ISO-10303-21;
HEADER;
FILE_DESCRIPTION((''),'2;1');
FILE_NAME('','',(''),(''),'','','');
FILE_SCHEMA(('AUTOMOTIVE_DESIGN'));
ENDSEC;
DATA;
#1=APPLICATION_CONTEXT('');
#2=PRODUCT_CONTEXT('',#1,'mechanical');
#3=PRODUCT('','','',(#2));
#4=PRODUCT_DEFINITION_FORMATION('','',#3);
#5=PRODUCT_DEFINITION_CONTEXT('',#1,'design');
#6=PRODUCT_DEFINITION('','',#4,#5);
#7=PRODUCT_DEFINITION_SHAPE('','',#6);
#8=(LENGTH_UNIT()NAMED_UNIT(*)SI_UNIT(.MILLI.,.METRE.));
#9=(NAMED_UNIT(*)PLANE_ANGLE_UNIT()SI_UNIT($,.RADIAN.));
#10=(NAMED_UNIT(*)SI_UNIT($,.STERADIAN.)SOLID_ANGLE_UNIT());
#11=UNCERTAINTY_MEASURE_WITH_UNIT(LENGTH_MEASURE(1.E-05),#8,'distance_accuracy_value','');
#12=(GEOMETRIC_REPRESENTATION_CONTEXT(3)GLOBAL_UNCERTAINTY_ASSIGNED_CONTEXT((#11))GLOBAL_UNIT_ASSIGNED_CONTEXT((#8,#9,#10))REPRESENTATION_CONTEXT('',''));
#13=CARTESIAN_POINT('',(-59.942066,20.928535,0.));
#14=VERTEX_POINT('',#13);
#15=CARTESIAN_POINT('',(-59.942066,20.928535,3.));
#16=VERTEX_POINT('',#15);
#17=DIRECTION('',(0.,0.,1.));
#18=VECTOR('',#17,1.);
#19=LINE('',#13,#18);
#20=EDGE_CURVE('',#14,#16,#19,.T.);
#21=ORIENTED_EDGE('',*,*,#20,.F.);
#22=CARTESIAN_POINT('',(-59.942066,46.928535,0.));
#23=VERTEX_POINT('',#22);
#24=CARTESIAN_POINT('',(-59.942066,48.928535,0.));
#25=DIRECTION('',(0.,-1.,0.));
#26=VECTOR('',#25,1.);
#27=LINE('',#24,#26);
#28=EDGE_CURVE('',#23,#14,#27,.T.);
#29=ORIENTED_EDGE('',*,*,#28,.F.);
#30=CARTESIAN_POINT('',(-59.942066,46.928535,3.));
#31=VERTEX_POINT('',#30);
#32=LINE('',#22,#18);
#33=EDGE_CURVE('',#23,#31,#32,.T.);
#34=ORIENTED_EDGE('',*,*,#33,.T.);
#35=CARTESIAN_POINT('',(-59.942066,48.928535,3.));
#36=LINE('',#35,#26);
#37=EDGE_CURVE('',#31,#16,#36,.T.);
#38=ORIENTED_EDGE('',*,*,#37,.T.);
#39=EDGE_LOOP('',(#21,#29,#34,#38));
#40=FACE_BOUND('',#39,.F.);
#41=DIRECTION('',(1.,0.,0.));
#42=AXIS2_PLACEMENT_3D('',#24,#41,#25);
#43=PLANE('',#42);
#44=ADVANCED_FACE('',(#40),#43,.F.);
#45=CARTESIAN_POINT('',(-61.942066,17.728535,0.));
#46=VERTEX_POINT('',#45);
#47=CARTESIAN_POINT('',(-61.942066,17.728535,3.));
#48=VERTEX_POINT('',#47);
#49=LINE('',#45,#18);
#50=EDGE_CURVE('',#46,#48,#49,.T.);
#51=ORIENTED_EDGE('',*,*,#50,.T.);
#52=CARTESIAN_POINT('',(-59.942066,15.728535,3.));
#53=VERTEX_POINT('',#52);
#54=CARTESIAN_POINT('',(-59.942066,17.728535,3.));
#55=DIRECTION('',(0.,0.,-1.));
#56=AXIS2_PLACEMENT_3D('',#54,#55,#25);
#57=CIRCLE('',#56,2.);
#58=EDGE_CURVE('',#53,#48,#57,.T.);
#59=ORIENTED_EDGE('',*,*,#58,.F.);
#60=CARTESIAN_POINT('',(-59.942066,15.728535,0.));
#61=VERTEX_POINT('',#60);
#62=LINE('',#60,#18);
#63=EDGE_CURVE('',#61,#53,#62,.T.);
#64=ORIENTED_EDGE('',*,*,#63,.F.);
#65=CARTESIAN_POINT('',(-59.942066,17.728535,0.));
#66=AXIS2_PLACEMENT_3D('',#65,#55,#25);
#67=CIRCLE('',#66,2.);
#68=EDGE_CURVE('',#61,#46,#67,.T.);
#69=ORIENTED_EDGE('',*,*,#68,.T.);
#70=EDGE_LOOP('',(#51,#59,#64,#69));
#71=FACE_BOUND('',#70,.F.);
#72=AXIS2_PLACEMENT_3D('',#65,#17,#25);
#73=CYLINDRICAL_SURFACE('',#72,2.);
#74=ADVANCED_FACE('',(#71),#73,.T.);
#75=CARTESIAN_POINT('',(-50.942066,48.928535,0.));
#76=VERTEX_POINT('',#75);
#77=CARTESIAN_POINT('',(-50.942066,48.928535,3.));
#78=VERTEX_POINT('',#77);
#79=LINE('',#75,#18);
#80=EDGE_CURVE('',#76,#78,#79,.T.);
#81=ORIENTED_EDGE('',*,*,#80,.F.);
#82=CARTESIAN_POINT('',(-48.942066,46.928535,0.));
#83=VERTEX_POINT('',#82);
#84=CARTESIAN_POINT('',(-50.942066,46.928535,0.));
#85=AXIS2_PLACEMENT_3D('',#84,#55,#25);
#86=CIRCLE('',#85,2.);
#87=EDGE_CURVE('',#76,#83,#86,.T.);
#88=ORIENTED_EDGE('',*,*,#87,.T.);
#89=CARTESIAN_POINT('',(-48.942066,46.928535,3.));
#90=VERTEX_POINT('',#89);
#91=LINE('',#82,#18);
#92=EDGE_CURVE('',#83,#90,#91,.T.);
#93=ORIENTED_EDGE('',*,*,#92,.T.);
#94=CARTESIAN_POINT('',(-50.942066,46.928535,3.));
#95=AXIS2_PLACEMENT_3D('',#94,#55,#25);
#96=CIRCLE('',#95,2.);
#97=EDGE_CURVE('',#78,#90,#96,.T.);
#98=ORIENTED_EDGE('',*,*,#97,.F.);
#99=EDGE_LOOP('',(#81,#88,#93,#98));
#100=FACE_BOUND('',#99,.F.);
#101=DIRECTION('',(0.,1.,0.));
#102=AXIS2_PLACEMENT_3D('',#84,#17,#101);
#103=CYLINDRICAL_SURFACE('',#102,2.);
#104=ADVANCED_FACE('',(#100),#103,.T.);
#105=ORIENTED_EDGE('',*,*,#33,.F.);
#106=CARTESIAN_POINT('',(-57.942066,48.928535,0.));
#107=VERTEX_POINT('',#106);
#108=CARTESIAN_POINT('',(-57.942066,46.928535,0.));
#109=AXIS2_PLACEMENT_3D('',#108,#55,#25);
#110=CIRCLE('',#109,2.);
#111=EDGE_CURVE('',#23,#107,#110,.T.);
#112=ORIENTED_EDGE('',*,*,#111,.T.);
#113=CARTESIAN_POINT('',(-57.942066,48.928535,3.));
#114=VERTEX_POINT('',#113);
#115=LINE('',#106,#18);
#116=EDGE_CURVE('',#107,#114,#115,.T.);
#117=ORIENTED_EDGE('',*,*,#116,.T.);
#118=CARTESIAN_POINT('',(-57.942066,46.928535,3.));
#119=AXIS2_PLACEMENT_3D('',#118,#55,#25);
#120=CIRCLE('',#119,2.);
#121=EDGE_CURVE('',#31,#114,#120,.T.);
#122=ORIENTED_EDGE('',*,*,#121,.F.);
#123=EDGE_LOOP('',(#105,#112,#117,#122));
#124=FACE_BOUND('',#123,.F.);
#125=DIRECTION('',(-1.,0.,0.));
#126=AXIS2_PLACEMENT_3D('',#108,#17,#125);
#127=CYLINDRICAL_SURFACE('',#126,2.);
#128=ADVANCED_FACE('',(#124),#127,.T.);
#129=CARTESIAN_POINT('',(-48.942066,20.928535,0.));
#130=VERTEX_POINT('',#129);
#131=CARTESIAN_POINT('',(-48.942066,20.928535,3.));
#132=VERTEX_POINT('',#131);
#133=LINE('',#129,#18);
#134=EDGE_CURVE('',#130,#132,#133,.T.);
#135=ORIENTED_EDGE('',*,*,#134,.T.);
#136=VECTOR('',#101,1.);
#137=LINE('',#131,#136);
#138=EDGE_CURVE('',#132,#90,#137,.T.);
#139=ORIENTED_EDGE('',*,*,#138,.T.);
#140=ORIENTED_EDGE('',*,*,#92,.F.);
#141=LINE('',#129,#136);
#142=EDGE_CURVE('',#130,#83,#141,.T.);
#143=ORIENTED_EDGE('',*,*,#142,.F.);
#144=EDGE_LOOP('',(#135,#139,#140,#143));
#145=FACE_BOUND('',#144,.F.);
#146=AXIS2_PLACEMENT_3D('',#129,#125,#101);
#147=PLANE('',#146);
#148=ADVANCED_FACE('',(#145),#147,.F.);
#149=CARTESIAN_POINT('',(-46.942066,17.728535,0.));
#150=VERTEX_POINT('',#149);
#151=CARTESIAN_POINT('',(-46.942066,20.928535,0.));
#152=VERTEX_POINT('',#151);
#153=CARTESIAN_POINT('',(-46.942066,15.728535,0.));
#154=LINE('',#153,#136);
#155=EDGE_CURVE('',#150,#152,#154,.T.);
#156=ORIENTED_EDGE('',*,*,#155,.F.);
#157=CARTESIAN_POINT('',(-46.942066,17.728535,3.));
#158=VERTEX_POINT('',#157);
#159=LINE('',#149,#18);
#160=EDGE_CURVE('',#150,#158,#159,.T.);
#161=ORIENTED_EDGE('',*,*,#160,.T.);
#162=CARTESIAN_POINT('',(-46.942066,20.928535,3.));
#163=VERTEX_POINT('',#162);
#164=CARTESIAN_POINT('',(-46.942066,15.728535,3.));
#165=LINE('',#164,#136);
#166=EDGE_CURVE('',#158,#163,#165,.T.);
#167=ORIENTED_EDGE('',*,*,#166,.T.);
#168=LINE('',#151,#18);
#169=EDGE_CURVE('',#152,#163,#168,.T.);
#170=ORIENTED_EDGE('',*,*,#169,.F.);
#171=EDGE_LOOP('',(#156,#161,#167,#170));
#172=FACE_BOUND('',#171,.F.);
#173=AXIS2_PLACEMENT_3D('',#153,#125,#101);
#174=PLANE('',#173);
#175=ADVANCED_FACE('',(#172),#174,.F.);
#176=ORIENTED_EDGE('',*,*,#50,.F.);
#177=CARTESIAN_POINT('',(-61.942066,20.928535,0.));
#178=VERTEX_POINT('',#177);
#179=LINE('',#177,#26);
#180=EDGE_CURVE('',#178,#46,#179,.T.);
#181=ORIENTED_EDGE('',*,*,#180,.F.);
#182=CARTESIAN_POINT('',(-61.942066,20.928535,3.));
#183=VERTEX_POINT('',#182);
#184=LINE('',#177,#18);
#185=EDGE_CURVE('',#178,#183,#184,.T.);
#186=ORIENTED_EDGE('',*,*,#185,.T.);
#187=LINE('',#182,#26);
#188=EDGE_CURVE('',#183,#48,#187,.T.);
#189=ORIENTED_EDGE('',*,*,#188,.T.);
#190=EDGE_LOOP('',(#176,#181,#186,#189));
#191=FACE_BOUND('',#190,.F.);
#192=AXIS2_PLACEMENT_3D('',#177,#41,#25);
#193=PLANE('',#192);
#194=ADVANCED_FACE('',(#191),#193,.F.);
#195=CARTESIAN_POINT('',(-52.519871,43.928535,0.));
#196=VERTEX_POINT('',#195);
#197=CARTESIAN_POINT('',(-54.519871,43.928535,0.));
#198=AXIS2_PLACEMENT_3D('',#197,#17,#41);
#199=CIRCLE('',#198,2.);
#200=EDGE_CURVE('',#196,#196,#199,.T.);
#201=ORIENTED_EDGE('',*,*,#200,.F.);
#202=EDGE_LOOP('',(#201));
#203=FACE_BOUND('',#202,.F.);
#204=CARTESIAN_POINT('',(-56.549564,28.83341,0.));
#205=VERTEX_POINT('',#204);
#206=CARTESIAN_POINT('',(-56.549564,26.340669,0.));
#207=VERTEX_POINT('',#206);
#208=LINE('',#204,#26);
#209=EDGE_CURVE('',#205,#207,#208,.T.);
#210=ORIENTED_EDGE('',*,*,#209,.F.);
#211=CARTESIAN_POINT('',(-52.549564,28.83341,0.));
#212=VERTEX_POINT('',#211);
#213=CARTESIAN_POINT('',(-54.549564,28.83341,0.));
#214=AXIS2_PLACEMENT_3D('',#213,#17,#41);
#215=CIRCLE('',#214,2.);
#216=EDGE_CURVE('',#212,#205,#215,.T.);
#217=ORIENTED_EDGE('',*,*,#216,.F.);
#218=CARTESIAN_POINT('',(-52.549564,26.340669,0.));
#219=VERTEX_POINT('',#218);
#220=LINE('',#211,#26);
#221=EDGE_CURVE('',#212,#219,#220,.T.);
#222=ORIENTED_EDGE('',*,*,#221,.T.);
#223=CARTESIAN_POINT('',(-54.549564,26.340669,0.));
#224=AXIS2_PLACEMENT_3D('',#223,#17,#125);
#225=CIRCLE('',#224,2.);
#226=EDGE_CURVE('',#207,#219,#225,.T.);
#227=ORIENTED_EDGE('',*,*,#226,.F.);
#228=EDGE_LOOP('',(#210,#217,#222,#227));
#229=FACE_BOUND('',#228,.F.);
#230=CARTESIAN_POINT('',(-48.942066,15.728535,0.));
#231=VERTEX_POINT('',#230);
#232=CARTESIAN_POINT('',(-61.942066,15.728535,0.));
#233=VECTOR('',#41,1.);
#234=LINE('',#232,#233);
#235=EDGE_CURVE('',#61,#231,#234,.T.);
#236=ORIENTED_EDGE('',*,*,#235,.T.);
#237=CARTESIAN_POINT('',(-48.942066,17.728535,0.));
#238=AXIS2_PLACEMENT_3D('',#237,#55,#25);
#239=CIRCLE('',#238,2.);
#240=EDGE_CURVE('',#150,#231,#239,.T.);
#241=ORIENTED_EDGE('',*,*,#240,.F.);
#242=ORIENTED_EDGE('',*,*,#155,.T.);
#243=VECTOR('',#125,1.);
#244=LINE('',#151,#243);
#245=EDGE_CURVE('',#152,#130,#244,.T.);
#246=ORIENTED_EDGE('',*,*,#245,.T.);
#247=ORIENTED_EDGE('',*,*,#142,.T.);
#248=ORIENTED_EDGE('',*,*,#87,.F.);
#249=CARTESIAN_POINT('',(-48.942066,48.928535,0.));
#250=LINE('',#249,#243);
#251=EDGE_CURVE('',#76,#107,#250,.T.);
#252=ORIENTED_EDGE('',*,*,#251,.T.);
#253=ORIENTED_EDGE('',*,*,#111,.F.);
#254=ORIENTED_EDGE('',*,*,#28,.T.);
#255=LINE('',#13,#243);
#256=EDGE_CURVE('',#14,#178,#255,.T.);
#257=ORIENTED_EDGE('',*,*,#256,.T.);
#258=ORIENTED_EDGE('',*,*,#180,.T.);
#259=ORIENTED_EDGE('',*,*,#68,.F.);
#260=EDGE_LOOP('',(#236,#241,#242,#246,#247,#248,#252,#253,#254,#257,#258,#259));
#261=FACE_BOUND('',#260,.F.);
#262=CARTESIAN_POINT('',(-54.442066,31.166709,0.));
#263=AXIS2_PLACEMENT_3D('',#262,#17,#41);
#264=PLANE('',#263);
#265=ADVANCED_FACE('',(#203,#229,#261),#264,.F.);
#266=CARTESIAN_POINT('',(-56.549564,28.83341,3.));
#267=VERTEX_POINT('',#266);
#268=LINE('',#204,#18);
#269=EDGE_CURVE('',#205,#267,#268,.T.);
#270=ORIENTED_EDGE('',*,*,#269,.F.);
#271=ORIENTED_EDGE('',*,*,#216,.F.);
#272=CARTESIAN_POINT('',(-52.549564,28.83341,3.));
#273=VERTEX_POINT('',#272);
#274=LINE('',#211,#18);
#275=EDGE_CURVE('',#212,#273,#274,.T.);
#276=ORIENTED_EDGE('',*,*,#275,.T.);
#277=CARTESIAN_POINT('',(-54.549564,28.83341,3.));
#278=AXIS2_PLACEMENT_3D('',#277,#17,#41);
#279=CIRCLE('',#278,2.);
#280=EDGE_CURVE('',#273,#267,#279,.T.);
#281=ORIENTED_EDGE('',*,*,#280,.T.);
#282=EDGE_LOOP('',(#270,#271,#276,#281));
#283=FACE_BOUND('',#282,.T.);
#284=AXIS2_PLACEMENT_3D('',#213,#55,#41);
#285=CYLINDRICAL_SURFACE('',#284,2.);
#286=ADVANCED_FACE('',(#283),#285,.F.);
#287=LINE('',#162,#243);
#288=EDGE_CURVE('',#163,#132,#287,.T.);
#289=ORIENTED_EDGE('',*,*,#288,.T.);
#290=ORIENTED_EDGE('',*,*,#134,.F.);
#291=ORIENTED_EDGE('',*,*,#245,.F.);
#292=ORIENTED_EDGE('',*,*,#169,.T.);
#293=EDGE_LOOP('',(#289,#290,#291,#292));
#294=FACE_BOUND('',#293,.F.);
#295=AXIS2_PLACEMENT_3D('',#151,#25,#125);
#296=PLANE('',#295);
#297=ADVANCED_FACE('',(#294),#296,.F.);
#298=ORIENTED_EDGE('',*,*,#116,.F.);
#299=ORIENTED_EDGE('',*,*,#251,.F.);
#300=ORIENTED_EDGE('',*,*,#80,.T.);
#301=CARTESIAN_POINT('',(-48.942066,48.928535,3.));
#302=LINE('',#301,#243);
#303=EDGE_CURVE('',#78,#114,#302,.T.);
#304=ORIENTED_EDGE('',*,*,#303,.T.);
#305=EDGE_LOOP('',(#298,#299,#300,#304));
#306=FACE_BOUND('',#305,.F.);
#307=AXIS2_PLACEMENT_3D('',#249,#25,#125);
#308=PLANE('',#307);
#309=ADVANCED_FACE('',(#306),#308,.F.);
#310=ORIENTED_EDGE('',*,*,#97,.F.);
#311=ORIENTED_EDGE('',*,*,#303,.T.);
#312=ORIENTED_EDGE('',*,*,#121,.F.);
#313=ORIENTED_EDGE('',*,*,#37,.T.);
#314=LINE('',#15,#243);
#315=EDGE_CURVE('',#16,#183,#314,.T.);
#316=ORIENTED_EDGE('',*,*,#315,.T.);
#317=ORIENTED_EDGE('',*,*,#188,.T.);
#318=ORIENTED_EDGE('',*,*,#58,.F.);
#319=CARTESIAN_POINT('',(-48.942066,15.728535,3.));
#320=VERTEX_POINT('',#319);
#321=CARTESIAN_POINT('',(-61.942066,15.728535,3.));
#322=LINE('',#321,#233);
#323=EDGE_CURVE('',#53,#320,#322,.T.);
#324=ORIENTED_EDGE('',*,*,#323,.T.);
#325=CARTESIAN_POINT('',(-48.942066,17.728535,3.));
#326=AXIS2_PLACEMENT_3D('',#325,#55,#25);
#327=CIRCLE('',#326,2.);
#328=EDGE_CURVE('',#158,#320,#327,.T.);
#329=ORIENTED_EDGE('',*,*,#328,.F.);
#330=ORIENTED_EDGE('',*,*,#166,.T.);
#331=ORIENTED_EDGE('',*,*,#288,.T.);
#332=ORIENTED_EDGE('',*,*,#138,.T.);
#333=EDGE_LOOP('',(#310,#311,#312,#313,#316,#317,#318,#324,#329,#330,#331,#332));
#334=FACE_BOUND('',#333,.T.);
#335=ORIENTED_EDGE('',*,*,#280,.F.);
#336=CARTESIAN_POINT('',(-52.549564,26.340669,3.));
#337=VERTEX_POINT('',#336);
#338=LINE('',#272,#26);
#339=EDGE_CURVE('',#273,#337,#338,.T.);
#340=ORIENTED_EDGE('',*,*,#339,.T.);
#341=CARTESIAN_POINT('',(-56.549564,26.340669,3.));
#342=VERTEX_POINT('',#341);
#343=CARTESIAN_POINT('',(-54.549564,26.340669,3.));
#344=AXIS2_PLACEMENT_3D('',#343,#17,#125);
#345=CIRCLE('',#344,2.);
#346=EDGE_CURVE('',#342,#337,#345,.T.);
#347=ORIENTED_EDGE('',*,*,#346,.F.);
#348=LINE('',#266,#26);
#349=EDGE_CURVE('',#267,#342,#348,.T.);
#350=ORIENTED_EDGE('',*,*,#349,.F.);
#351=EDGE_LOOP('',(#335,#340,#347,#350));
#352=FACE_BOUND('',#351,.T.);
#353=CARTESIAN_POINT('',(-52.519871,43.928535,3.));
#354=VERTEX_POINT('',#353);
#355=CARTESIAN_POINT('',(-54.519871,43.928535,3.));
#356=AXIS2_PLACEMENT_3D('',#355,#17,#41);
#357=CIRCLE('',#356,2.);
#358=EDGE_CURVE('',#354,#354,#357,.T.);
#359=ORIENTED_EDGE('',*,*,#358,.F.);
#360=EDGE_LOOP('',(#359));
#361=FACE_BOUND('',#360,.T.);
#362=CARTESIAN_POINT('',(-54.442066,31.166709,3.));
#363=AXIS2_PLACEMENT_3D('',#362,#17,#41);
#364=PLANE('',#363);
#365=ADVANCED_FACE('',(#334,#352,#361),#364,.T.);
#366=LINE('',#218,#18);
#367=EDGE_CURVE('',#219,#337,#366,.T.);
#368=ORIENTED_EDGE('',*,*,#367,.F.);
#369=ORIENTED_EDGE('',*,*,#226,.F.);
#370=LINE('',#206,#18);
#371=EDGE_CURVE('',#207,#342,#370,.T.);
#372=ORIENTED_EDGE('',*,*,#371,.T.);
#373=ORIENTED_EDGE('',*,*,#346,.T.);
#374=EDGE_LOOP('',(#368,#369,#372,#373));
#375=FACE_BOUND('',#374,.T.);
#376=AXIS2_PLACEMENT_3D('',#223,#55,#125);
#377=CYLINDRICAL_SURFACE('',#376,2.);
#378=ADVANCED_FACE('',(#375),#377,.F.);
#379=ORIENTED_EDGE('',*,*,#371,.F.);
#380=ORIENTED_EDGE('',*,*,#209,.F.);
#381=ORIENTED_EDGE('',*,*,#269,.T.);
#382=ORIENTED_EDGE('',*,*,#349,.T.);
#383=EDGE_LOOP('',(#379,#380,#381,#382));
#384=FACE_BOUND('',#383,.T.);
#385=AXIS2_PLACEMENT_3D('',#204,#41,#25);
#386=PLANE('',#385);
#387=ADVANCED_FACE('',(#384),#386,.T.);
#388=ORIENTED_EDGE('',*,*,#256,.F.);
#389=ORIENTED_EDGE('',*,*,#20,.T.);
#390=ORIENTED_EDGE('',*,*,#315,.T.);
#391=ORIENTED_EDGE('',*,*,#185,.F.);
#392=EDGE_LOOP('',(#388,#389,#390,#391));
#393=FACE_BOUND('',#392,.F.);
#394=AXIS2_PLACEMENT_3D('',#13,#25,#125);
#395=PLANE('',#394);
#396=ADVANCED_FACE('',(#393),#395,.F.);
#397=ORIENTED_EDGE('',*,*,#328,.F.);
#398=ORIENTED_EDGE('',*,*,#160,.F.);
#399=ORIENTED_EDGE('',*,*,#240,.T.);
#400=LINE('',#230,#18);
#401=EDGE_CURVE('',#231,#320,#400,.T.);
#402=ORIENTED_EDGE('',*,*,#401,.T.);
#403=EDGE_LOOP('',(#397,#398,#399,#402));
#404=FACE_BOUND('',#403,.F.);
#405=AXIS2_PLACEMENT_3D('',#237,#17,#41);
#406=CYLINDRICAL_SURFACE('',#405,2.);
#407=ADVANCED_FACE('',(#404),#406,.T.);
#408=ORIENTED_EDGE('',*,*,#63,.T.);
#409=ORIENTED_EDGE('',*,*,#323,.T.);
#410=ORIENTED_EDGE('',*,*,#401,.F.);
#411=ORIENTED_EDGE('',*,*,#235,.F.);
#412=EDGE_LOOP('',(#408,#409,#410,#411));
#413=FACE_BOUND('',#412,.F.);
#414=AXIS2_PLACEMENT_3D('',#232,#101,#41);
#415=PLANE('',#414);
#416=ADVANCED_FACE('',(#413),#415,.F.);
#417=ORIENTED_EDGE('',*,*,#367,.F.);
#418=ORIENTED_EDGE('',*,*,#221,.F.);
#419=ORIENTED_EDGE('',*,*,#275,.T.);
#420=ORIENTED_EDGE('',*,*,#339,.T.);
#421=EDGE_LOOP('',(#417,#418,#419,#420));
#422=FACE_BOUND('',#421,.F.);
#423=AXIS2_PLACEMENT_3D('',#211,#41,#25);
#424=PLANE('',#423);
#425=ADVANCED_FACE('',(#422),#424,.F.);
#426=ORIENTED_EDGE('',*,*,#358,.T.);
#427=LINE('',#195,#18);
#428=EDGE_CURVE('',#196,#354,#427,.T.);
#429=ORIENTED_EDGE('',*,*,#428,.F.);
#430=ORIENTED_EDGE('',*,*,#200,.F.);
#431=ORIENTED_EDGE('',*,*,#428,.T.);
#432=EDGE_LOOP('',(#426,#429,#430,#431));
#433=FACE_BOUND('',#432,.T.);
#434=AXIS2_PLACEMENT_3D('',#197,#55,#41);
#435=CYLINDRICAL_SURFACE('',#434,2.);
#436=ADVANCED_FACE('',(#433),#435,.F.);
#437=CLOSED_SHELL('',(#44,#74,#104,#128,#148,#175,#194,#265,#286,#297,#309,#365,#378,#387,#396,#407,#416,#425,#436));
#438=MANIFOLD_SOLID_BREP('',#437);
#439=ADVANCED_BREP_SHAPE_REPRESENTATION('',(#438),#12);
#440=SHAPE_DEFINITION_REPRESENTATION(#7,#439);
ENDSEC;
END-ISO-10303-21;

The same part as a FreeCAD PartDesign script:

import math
import FreeCAD as App
import Part
import Sketcher


def edges_at(feature, points):
    """Names of the edges that pass closest to the given points."""
    edges = feature.Shape.Edges
    near = lambda p: min(range(len(edges)), key=lambda i: edges[i].distToShape(Part.Vertex(*p))[0])
    return sorted({f"Edge{near(p) + 1}" for p in points})

doc = App.newDocument("Part")
body = doc.addObject("PartDesign::Body", "Body")

# Sketch on XY plane
sketch1 = body.newObject("Sketcher::SketchObject", "Sketch")
sketch1.AttachmentSupport = (doc.getObject("XY_Plane"), [""])
sketch1.MapMode = "FlatFace"
sketch1.addGeometry(Part.LineSegment(App.Vector(-48.9, 48.9, 0), App.Vector(-59.9, 48.9, 0)), False)
sketch1.addGeometry(Part.LineSegment(App.Vector(-59.9, 48.9, 0), App.Vector(-59.9, 20.9, 0)), False)
sketch1.addGeometry(Part.LineSegment(App.Vector(-59.9, 20.9, 0), App.Vector(-61.9, 20.9, 0)), False)
sketch1.addGeometry(Part.LineSegment(App.Vector(-61.9, 20.9, 0), App.Vector(-61.9, 15.7, 0)), False)
sketch1.addGeometry(Part.LineSegment(App.Vector(-61.9, 15.7, 0), App.Vector(-46.9, 15.7, 0)), False)
sketch1.addGeometry(Part.LineSegment(App.Vector(-46.9, 15.7, 0), App.Vector(-46.9, 20.9, 0)), False)
sketch1.addGeometry(Part.LineSegment(App.Vector(-46.9, 20.9, 0), App.Vector(-48.9, 20.9, 0)), False)
sketch1.addGeometry(Part.LineSegment(App.Vector(-48.9, 20.9, 0), App.Vector(-48.9, 48.9, 0)), False)
sketch1.addGeometry(Part.ArcOfCircle(Part.Circle(App.Vector(-54.5, 28.8, 0), App.Vector(0, 0, 1), 2), math.radians(0), math.radians(180)), False)
sketch1.addGeometry(Part.LineSegment(App.Vector(-52.5, 28.8, 0), App.Vector(-52.5, 26.3, 0)), False)
sketch1.addGeometry(Part.ArcOfCircle(Part.Circle(App.Vector(-54.5, 26.3, 0), App.Vector(0, 0, 1), 2), math.radians(180), math.radians(360)), False)
sketch1.addGeometry(Part.LineSegment(App.Vector(-56.5, 26.3, 0), App.Vector(-56.5, 28.8, 0)), False)
sketch1.addGeometry(Part.Circle(App.Vector(-54.5, 43.9, 0), App.Vector(0, 0, 1), 2), False)
sketch1.addConstraint(Sketcher.Constraint("Coincident", 0, 2, 1, 1))
sketch1.addConstraint(Sketcher.Constraint("Coincident", 1, 2, 2, 1))
sketch1.addConstraint(Sketcher.Constraint("Coincident", 2, 2, 3, 1))
sketch1.addConstraint(Sketcher.Constraint("Coincident", 3, 2, 4, 1))
sketch1.addConstraint(Sketcher.Constraint("Coincident", 4, 2, 5, 1))
sketch1.addConstraint(Sketcher.Constraint("Coincident", 5, 2, 6, 1))
sketch1.addConstraint(Sketcher.Constraint("Coincident", 6, 2, 7, 1))
sketch1.addConstraint(Sketcher.Constraint("Coincident", 7, 2, 0, 1))
sketch1.addConstraint(Sketcher.Constraint("Tangent", 8, 1, 9, 1))
sketch1.addConstraint(Sketcher.Constraint("Tangent", 9, 2, 10, 2))
sketch1.addConstraint(Sketcher.Constraint("Tangent", 10, 1, 11, 1))
sketch1.addConstraint(Sketcher.Constraint("Tangent", 11, 2, 8, 2))
sketch1.addConstraint(Sketcher.Constraint("Horizontal", 0))
sketch1.addConstraint(Sketcher.Constraint("Vertical", 1))
sketch1.addConstraint(Sketcher.Constraint("Horizontal", 2))
sketch1.addConstraint(Sketcher.Constraint("Vertical", 3))
sketch1.addConstraint(Sketcher.Constraint("Horizontal", 4))
sketch1.addConstraint(Sketcher.Constraint("Vertical", 5))
sketch1.addConstraint(Sketcher.Constraint("Horizontal", 6))
sketch1.addConstraint(Sketcher.Constraint("Vertical", 7))
sketch1.addConstraint(Sketcher.Constraint("Vertical", 9))
sketch1.addConstraint(Sketcher.Constraint("Vertical", 11))
sketch1.addConstraint(Sketcher.Constraint("Equal", 10, 12))
sketch1.addConstraint(Sketcher.Constraint("Horizontal", 2, 2, 5, 2))
sketch1.addConstraint(Sketcher.Constraint("Equal", 2, 6))
sketch1.addConstraint(Sketcher.Constraint("Diameter", 12, 4.0))
sketch1.addConstraint(Sketcher.Constraint("DistanceX", 0, 2, 0, 1, 11.0))
sketch1.addConstraint(Sketcher.Constraint("DistanceX", 2, 2, 2, 1, 2.0))
sketch1.addConstraint(Sketcher.Constraint("DistanceY", 1, 2, 1, 1, 28.0))
sketch1.addConstraint(Sketcher.Constraint("DistanceY", 3, 2, 3, 1, 5.2))
sketch1.addConstraint(Sketcher.Constraint("DistanceY", 12, 3, 0, 2, 5.0))
sketch1.addConstraint(Sketcher.Constraint("DistanceY", 9, 2, 9, 1, 2.492741))
sketch1.addConstraint(Sketcher.Constraint("DistanceY", -1, 1, 8, 3, 28.83341))
sketch1.addConstraint(Sketcher.Constraint("DistanceX", 12, 3, -1, 1, 54.519871))
sketch1.addConstraint(Sketcher.Constraint("DistanceX", 8, 3, -1, 1, 54.549564))
sketch1.addConstraint(Sketcher.Constraint("DistanceY", -1, 1, 12, 3, 43.928535))
sketch1.addConstraint(Sketcher.Constraint("DistanceX", 0, 2, -1, 1, 59.942066))
pad1 = body.newObject("PartDesign::Pad", "Pad")
pad1.Profile = sketch1
pad1.Length = 3
doc.recompute()

fillet = body.newObject("PartDesign::Fillet", "Fillet")
fillet.Base = (pad1, edges_at(pad1, [(-48.942, 48.929, 1.5)]))
fillet.Radius = 2
doc.recompute()

fillet2 = body.newObject("PartDesign::Fillet", "Fillet001")
fillet2.Base = (fillet, edges_at(fillet, [(-46.942, 15.729, 1.5)]))
fillet2.Radius = 2
doc.recompute()

fillet3 = body.newObject("PartDesign::Fillet", "Fillet002")
fillet3.Base = (fillet2, edges_at(fillet2, [(-61.942, 15.729, 1.5)]))
fillet3.Radius = 2
doc.recompute()

fillet4 = body.newObject("PartDesign::Fillet", "Fillet003")
fillet4.Base = (fillet3, edges_at(fillet3, [(-59.942, 48.929, 1.5)]))
fillet4.Radius = 2

doc.recompute()
